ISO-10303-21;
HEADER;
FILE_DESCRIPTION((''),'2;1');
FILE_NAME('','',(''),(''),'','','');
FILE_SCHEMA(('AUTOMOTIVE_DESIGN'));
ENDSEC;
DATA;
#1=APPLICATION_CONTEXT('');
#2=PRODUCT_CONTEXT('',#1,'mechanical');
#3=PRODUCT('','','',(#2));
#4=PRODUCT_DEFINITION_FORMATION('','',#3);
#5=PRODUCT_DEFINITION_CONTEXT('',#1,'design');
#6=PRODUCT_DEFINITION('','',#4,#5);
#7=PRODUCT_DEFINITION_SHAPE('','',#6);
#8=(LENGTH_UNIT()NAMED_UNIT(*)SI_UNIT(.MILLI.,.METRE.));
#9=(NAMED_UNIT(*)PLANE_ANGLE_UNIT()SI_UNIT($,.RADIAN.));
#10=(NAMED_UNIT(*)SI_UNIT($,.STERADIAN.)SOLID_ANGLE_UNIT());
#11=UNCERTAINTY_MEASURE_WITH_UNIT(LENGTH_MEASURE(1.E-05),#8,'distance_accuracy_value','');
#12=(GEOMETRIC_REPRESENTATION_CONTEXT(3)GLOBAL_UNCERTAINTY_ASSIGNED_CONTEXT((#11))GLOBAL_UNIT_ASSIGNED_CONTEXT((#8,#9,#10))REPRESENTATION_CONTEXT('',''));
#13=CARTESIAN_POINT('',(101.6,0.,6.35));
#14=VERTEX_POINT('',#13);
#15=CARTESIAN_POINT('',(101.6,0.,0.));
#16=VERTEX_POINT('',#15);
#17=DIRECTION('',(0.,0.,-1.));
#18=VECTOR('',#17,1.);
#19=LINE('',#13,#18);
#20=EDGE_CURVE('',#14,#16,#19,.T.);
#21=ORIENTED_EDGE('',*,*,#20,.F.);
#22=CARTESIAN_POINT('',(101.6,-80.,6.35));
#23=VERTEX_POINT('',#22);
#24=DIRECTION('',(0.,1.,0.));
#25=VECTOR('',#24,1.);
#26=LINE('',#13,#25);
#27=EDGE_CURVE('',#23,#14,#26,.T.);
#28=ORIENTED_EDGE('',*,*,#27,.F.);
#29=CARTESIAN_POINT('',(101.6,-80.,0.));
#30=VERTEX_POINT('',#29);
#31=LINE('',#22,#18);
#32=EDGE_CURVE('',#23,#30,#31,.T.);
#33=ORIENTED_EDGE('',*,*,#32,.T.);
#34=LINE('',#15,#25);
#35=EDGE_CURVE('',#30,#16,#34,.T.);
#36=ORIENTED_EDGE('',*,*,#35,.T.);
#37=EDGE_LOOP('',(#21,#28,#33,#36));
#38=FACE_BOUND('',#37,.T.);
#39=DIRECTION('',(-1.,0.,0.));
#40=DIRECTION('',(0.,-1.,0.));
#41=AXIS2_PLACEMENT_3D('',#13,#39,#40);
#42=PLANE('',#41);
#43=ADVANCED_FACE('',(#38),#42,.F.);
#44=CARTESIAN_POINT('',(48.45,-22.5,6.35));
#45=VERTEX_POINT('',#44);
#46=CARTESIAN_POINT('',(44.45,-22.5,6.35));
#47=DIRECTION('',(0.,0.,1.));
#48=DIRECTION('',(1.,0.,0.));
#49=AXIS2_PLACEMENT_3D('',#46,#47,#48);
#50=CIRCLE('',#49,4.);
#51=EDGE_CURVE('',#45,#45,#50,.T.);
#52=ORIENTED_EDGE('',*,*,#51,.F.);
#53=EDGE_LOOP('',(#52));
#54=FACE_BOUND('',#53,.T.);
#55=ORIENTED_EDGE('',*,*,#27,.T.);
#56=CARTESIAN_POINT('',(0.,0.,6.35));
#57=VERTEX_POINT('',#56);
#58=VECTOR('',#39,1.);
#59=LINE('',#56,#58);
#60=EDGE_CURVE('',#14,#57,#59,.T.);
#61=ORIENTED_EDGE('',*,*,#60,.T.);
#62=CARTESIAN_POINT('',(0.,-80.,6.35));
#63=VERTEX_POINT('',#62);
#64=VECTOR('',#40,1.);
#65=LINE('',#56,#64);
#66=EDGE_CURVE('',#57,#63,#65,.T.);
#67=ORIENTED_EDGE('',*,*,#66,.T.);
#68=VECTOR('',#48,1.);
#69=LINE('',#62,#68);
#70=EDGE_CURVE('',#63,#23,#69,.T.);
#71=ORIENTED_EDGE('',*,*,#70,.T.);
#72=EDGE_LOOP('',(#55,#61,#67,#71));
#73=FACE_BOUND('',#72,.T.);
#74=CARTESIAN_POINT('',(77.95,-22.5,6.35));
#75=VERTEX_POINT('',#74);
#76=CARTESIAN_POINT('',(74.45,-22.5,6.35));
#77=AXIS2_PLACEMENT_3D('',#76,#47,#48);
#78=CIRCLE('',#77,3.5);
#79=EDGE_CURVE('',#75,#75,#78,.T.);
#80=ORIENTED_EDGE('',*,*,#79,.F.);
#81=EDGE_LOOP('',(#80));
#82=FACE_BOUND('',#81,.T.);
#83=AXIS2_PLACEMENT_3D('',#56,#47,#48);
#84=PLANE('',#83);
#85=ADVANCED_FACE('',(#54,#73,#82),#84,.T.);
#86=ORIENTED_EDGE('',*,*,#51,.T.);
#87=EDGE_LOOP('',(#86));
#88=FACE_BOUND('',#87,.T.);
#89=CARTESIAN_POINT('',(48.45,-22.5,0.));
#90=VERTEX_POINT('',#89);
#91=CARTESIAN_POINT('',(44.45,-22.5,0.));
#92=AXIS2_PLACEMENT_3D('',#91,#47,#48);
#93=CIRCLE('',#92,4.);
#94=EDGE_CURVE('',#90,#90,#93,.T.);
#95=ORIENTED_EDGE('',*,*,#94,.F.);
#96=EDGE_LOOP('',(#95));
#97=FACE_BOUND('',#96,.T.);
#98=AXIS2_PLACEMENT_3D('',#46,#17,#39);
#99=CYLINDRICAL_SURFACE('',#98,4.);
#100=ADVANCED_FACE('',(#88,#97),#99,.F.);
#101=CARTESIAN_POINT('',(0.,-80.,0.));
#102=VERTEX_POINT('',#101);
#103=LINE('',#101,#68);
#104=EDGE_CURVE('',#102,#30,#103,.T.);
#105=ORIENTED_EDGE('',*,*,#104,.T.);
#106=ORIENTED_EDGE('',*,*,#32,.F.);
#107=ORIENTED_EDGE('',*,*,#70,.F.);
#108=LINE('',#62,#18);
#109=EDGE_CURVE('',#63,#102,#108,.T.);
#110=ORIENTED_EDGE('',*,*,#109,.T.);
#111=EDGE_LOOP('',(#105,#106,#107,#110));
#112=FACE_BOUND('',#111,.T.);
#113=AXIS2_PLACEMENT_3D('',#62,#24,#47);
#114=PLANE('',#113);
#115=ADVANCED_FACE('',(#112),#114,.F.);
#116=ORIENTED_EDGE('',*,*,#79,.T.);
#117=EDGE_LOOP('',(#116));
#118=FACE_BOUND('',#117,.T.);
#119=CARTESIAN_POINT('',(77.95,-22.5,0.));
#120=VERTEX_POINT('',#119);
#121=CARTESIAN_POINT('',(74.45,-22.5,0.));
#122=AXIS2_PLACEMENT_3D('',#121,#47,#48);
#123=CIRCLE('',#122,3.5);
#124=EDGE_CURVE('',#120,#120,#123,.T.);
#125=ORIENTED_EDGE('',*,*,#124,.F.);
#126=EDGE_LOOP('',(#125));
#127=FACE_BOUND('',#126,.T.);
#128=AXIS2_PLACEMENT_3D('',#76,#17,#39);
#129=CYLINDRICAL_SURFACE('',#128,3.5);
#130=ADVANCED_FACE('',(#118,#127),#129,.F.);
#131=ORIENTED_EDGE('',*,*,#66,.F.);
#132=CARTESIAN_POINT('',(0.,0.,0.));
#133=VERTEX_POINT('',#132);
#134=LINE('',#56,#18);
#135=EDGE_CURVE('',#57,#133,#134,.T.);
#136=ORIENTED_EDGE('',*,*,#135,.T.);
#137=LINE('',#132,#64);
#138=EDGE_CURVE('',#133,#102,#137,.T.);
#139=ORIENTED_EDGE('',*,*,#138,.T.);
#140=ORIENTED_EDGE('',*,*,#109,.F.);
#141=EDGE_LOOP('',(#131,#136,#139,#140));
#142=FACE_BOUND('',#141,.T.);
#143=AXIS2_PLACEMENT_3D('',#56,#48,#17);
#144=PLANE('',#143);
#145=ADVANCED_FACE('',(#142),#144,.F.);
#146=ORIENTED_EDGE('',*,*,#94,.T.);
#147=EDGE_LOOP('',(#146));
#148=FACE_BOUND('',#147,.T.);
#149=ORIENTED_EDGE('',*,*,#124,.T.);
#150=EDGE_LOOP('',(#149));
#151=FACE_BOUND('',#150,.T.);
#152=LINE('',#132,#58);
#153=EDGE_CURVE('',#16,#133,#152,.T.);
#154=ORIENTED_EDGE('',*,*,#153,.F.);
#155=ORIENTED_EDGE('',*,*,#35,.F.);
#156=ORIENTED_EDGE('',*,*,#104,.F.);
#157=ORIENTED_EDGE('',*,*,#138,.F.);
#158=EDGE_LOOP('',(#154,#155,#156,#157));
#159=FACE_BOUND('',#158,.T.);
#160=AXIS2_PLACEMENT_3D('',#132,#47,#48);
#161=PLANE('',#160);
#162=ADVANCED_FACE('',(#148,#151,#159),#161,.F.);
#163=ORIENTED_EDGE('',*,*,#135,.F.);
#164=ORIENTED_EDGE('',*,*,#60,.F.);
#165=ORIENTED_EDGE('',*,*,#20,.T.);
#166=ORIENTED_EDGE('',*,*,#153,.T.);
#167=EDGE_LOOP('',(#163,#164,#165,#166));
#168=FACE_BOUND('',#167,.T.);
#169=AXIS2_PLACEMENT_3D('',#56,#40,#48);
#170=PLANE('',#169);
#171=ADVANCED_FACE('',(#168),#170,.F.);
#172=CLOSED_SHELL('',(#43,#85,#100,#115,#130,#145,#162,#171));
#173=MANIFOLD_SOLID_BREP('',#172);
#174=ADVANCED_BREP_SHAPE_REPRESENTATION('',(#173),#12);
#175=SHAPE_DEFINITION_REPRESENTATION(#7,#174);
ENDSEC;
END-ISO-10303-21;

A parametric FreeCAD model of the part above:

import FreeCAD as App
import Part
import Sketcher
Q = App.Units.Quantity

doc = App.newDocument("Part")
body = doc.addObject("PartDesign::Body", "Body")

sketch1 = body.newObject("Sketcher::SketchObject", "Sketch")
sketch1.AttachmentSupport = (doc.getObject("XY_Plane"), [""])
sketch1.MapMode = "FlatFace"
sketch1.addGeometry([
    Part.LineSegment(App.Vector(0, 0, 0), App.Vector(0, -80, 0)),
    Part.LineSegment(App.Vector(0, -80, 0), App.Vector(101.6, -80, 0)),
    Part.LineSegment(App.Vector(101.6, -80, 0), App.Vector(101.6, 0, 0)),
    Part.LineSegment(App.Vector(101.6, 0, 0), App.Vector(0, 0, 0)),
    Part.Circle(App.Vector(44.5, -22.5, 0), App.Vector(0, 0, 1), 4),
    Part.Circle(App.Vector(74.5, -22.5, 0), App.Vector(0, 0, 1), 3.5),
], False)
sketch1.addConstraint([
    Sketcher.Constraint("Coincident", 0, 2, 1, 1),
    Sketcher.Constraint("Coincident", 1, 2, 2, 1),
    Sketcher.Constraint("Coincident", 2, 2, 3, 1),
    Sketcher.Constraint("Coincident", 3, 2, 0, 1),
    Sketcher.Constraint("Vertical", 0),
    Sketcher.Constraint("Horizontal", 1),
    Sketcher.Constraint("Vertical", 2),
    Sketcher.Constraint("Horizontal", 3),
    Sketcher.Constraint("Coincident", 3, 2, -1, 1),
    Sketcher.Constraint("Horizontal", 4, 3, 5, 3),
    Sketcher.Constraint("Diameter", 4, Q("8 mm")),
    Sketcher.Constraint("Diameter", 5, Q("7 mm")),
    Sketcher.Constraint("DistanceY", 0, 2, 0, 1, Q("80 mm")),
    Sketcher.Constraint("DistanceX", 1, 1, 1, 2, Q("101.6 mm")),
    Sketcher.Constraint("DistanceX", 4, 3, 5, 3, Q("30 mm")),
    Sketcher.Constraint("DistanceY", 4, 3, -1, 1, Q("22.5 mm")),
    Sketcher.Constraint("DistanceX", -1, 1, 4, 3, Q("44.45 mm")),
])
pad1 = body.newObject("PartDesign::Pad", "Pad")
pad1.Profile = sketch1
pad1.Length = 6.35

doc.recompute()
